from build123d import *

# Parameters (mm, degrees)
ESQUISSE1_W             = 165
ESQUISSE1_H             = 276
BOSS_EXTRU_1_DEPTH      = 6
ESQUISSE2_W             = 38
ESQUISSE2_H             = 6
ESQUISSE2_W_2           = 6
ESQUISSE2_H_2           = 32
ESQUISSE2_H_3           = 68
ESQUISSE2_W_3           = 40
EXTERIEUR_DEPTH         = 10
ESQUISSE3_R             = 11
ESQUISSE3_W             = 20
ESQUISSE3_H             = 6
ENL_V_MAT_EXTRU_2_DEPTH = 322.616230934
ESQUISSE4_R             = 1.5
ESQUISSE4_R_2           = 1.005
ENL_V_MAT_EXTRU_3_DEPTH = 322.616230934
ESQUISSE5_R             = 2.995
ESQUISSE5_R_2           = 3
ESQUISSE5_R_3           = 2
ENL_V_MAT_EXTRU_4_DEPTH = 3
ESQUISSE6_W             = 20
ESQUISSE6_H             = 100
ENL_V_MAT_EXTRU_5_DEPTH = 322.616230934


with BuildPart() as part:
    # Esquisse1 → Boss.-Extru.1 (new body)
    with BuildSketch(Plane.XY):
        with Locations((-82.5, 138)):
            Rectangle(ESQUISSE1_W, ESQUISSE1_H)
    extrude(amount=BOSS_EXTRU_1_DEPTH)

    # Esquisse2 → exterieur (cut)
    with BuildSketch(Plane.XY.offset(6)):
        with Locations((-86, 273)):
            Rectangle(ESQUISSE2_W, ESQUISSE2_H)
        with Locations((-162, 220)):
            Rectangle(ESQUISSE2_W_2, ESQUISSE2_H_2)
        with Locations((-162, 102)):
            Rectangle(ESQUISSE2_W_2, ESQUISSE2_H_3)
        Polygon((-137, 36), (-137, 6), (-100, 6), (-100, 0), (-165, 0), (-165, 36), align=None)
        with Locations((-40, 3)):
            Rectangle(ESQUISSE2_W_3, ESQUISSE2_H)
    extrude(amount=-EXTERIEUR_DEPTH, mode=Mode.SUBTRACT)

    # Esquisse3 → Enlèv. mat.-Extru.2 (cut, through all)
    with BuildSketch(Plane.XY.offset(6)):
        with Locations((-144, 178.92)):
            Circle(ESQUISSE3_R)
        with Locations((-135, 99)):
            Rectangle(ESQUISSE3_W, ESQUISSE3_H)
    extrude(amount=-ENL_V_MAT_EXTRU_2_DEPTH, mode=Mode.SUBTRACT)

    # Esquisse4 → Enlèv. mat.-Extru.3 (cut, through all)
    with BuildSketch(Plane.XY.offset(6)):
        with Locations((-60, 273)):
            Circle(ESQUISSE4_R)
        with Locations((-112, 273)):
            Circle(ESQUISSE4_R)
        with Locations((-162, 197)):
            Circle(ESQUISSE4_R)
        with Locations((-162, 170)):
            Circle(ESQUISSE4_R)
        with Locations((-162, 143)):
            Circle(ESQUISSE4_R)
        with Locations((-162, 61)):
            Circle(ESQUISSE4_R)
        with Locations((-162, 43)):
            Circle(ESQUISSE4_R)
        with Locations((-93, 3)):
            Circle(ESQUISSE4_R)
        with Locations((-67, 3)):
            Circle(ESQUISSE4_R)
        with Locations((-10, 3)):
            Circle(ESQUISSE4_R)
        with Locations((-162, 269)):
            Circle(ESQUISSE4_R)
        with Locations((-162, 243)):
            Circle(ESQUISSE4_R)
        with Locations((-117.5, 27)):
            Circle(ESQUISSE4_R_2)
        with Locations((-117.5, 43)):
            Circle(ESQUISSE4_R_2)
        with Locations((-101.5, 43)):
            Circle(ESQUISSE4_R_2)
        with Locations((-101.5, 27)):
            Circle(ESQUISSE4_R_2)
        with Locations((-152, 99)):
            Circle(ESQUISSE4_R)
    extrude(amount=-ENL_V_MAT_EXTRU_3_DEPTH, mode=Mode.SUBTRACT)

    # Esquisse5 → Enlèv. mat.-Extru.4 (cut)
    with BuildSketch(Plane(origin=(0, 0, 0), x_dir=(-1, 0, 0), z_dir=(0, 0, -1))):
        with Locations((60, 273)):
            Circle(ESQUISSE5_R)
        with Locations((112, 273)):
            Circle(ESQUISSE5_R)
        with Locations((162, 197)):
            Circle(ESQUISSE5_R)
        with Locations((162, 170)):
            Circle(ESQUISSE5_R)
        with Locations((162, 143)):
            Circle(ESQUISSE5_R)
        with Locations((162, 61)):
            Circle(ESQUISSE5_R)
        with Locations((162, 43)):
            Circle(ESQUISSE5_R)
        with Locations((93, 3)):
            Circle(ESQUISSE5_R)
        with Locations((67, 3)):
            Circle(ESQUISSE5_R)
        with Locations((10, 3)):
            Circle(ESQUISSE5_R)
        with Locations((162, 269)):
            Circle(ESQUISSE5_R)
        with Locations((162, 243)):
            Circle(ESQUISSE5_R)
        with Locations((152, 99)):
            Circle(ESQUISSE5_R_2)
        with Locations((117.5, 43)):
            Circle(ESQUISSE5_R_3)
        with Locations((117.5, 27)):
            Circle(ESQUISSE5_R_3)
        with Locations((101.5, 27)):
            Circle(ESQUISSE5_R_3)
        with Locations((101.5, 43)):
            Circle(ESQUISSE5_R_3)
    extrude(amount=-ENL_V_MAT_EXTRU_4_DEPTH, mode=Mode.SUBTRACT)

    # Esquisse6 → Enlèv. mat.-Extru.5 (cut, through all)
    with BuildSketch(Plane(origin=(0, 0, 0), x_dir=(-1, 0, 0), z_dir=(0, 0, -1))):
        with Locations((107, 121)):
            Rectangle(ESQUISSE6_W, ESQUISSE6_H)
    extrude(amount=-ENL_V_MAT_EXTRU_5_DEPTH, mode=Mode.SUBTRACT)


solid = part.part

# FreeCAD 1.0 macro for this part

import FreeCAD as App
import Part
import Sketcher
from FreeCAD import Vector
Q = App.Units.Quantity


def add_polygon(sketch, points):
    """Adds a closed chain of lines whose ends are joined by coincident constraints."""
    first, n = sketch.GeometryCount, len(points)
    for a, b in zip(points, points[1:] + points[:1]):
        sketch.addGeometry(Part.LineSegment(App.Vector(*a, 0), App.Vector(*b, 0)), False)
    for i in range(n):
        sketch.addConstraint(Sketcher.Constraint("Coincident", first + i, 2, first + (i + 1) % n, 1))

doc = App.newDocument("Part")
body = doc.addObject("PartDesign::Body", "Body")

sketch1 = body.newObject("Sketcher::SketchObject", "Sketch")
sketch1.AttachmentSupport = (doc.getObject("XY_Plane"), [""])
sketch1.MapMode = "FlatFace"
add_polygon(sketch1, [(-165, 276), (-165, 0), (0, 0), (0, 276)])
sketch1.addConstraint(Sketcher.Constraint("Vertical", 0))
sketch1.addConstraint(Sketcher.Constraint("Horizontal", 1))
sketch1.addConstraint(Sketcher.Constraint("Vertical", 2))
sketch1.addConstraint(Sketcher.Constraint("Horizontal", 3))
sketch1.addConstraint(Sketcher.Constraint("Coincident", 1, 2, -1, 1))
sketch1.addConstraint(Sketcher.Constraint("DistanceX", 1, 1, 1, 2, Q("165 mm")))
sketch1.addConstraint(Sketcher.Constraint("DistanceY", 0, 2, 0, 1, Q("276 mm")))
pad1 = body.newObject("PartDesign::Pad", "Pad")
pad1.Profile = sketch1
pad1.Length = 6

sketch2 = body.newObject("Sketcher::SketchObject", "Sketch001")
sketch2.AttachmentSupport = (doc.getObject("XY_Plane"), [""])
sketch2.MapMode = "FlatFace"
sketch2.AttachmentOffset = App.Placement(Vector(0, 0, 6), App.Rotation())
add_polygon(sketch2, [(-105, 276), (-105, 270), (-67, 270), (-67, 276)])
add_polygon(sketch2, [(-165, 236), (-165, 204), (-159, 204), (-159, 236)])
add_polygon(sketch2, [(-165, 136), (-165, 68), (-159, 68), (-159, 136)])
add_polygon(sketch2, [(-137, 6), (-137, 36), (-165, 36), (-165, 0), (-100, 0), (-100, 6)])
add_polygon(sketch2, [(-60, 6), (-60, 0), (-20, 0), (-20, 6)])
sketch2.addConstraint(Sketcher.Constraint("Vertical", 0))
sketch2.addConstraint(Sketcher.Constraint("Horizontal", 1))
sketch2.addConstraint(Sketcher.Constraint("Vertical", 2))
sketch2.addConstraint(Sketcher.Constraint("Horizontal", 3))
sketch2.addConstraint(Sketcher.Constraint("Vertical", 4))
sketch2.addConstraint(Sketcher.Constraint("Horizontal", 5))
sketch2.addConstraint(Sketcher.Constraint("Vertical", 6))
sketch2.addConstraint(Sketcher.Constraint("Horizontal", 7))
sketch2.addConstraint(Sketcher.Constraint("Vertical", 8))
sketch2.addConstraint(Sketcher.Constraint("Horizontal", 9))
sketch2.addConstraint(Sketcher.Constraint("Vertical", 10))
sketch2.addConstraint(Sketcher.Constraint("Horizontal", 11))
sketch2.addConstraint(Sketcher.Constraint("Vertical", 12))
sketch2.addConstraint(Sketcher.Constraint("Horizontal", 13))
sketch2.addConstraint(Sketcher.Constraint("Vertical", 14))
sketch2.addConstraint(Sketcher.Constraint("Horizontal", 15))
sketch2.addConstraint(Sketcher.Constraint("Vertical", 16))
sketch2.addConstraint(Sketcher.Constraint("Horizontal", 17))
sketch2.addConstraint(Sketcher.Constraint("Vertical", 18))
sketch2.addConstraint(Sketcher.Constraint("Horizontal", 19))
sketch2.addConstraint(Sketcher.Constraint("Vertical", 20))
sketch2.addConstraint(Sketcher.Constraint("Horizontal", 21))
sketch2.addConstraint(Sketcher.Constraint("PointOnObject", 14, 2, -1))
sketch2.addConstraint(Sketcher.Constraint("PointOnObject", 18, 2, -1))
sketch2.addConstraint(Sketcher.Constraint("Horizontal", 17, 2, 20, 2))
sketch2.addConstraint(Sketcher.Constraint("Vertical", 7, 2, 8, 2))
sketch2.addConstraint(Sketcher.Constraint("Vertical", 6, 2, 9, 2))
sketch2.addConstraint(Sketcher.Constraint("Vertical", 11, 2, 13, 2))
sketch2.addConstraint(Sketcher.Constraint("Equal", 11, 0))
sketch2.addConstraint(Sketcher.Constraint("Equal", 2, 16))
sketch2.addConstraint(Sketcher.Constraint("DistanceX", 1, 1, 1, 2, Q("38 mm")))
sketch2.addConstraint(Sketcher.Constraint("DistanceX", 5, 1, 5, 2, Q("6 mm")))
sketch2.addConstraint(Sketcher.Constraint("DistanceX", 13, 2, 13, 1, Q("28 mm")))
sketch2.addConstraint(Sketcher.Constraint("DistanceX", 15, 1, 15, 2, Q("65 mm")))
sketch2.addConstraint(Sketcher.Constraint("DistanceX", 19, 1, 19, 2, Q("40 mm")))
sketch2.addConstraint(Sketcher.Constraint("DistanceY", 4, 2, 4, 1, Q("32 mm")))
sketch2.addConstraint(Sketcher.Constraint("DistanceY", 8, 2, 8, 1, Q("68 mm")))
sketch2.addConstraint(Sketcher.Constraint("DistanceY", 12, 1, 12, 2, Q("30 mm")))
sketch2.addConstraint(Sketcher.Constraint("DistanceX", 0, 2, -1, 1, Q("105 mm")))
sketch2.addConstraint(Sketcher.Constraint("DistanceY", -1, 1, 0, 2, Q("270 mm")))
sketch2.addConstraint(Sketcher.Constraint("DistanceX", 4, 2, -1, 1, Q("165 mm")))
sketch2.addConstraint(Sketcher.Constraint("DistanceY", -1, 1, 4, 2, Q("204 mm")))
sketch2.addConstraint(Sketcher.Constraint("DistanceY", -1, 1, 8, 2, Q("68 mm")))
sketch2.addConstraint(Sketcher.Constraint("DistanceX", 18, 2, -1, 1, Q("60 mm")))
pocket1 = body.newObject("PartDesign::Pocket", "Pocket")
pocket1.Profile = sketch2
pocket1.Length = 10

sketch3 = body.newObject("Sketcher::SketchObject", "Sketch002")
sketch3.AttachmentSupport = (doc.getObject("XY_Plane"), [""])
sketch3.MapMode = "FlatFace"
sketch3.AttachmentOffset = App.Placement(Vector(0, 0, 6), App.Rotation())
sketch3.addGeometry(Part.Circle(Vector(-144, 178.92, 0), Vector(0, 0, 1), 11), False)
add_polygon(sketch3, [(-145, 102), (-145, 96), (-125, 96), (-125, 102)])
sketch3.addConstraint(Sketcher.Constraint("Vertical", 1))
sketch3.addConstraint(Sketcher.Constraint("Horizontal", 2))
sketch3.addConstraint(Sketcher.Constraint("Vertical", 3))
sketch3.addConstraint(Sketcher.Constraint("Horizontal", 4))
sketch3.addConstraint(Sketcher.Constraint("Diameter", 0, Q("22 mm")))
sketch3.addConstraint(Sketcher.Constraint("DistanceX", 2, 1, 2, 2, Q("20 mm")))
sketch3.addConstraint(Sketcher.Constraint("DistanceY", 1, 2, 1, 1, Q("6 mm")))
sketch3.addConstraint(Sketcher.Constraint("DistanceX", 0, 3, -1, 1, Q("144 mm")))
sketch3.addConstraint(Sketcher.Constraint("DistanceX", 1, 2, -1, 1, Q("145 mm")))
sketch3.addConstraint(Sketcher.Constraint("DistanceY", -1, 1, 1, 2, Q("96 mm")))
sketch3.addConstraint(Sketcher.Constraint("DistanceY", -1, 1, 0, 3, Q("178.92 mm")))
pocket2 = body.newObject("PartDesign::Pocket", "Pocket001")
pocket2.Profile = sketch3
pocket2.Type = "ThroughAll"

sketch4 = body.newObject("Sketcher::SketchObject", "Sketch003")
sketch4.AttachmentSupport = (doc.getObject("XY_Plane"), [""])
sketch4.MapMode = "FlatFace"
sketch4.AttachmentOffset = App.Placement(Vector(0, 0, 6), App.Rotation())
sketch4.addGeometry(Part.Circle(Vector(-60, 273, 0), Vector(0, 0, 1), 1.5), False)
sketch4.addGeometry(Part.Circle(Vector(-112, 273, 0), Vector(0, 0, 1), 1.5), False)
sketch4.addGeometry(Part.Circle(Vector(-162, 197, 0), Vector(0, 0, 1), 1.5), False)
sketch4.addGeometry(Part.Circle(Vector(-162, 170, 0), Vector(0, 0, 1), 1.5), False)
sketch4.addGeometry(Part.Circle(Vector(-162, 143, 0), Vector(0, 0, 1), 1.5), False)
sketch4.addGeometry(Part.Circle(Vector(-162, 61, 0), Vector(0, 0, 1), 1.5), False)
sketch4.addGeometry(Part.Circle(Vector(-162, 43, 0), Vector(0, 0, 1), 1.5), False)
sketch4.addGeometry(Part.Circle(Vector(-93, 3, 0), Vector(0, 0, 1), 1.5), False)
sketch4.addGeometry(Part.Circle(Vector(-67, 3, 0), Vector(0, 0, 1), 1.5), False)
sketch4.addGeometry(Part.Circle(Vector(-10, 3, 0), Vector(0, 0, 1), 1.5), False)
sketch4.addGeometry(Part.Circle(Vector(-162, 269, 0), Vector(0, 0, 1), 1.5), False)
sketch4.addGeometry(Part.Circle(Vector(-162, 243, 0), Vector(0, 0, 1), 1.5), False)
sketch4.addGeometry(Part.Circle(Vector(-117.5, 27, 0), Vector(0, 0, 1), 1.005), False)
sketch4.addGeometry(Part.Circle(Vector(-117.5, 43, 0), Vector(0, 0, 1), 1.005), False)
sketch4.addGeometry(Part.Circle(Vector(-101.5, 43, 0), Vector(0, 0, 1), 1.005), False)
sketch4.addGeometry(Part.Circle(Vector(-101.5, 27, 0), Vector(0, 0, 1), 1.005), False)
sketch4.addGeometry(Part.Circle(Vector(-152, 99, 0), Vector(0, 0, 1), 1.5), False)
sketch4.addConstraint(Sketcher.Constraint("Equal", 0, 1))
sketch4.addConstraint(Sketcher.Constraint("Equal", 1, 2))
sketch4.addConstraint(Sketcher.Constraint("Equal", 2, 3))
sketch4.addConstraint(Sketcher.Constraint("Equal", 3, 4))
sketch4.addConstraint(Sketcher.Constraint("Equal", 4, 5))
sketch4.addConstraint(Sketcher.Constraint("Equal", 5, 6))
sketch4.addConstraint(Sketcher.Constraint("Equal", 6, 7))
sketch4.addConstraint(Sketcher.Constraint("Equal", 7, 8))
sketch4.addConstraint(Sketcher.Constraint("Equal", 8, 9))
sketch4.addConstraint(Sketcher.Constraint("Equal", 9, 10))
sketch4.addConstraint(Sketcher.Constraint("Equal", 10, 11))
sketch4.addConstraint(Sketcher.Constraint("Equal", 12, 13))
sketch4.addConstraint(Sketcher.Constraint("Equal", 13, 14))
sketch4.addConstraint(Sketcher.Constraint("Equal", 14, 15))
sketch4.addConstraint(Sketcher.Constraint("Equal", 11, 16))
sketch4.addConstraint(Sketcher.Constraint("Horizontal", 0, 3, 1, 3))
sketch4.addConstraint(Sketcher.Constraint("Horizontal", 7, 3, 8, 3))
sketch4.addConstraint(Sketcher.Constraint("Horizontal", 8, 3, 9, 3))
sketch4.addConstraint(Sketcher.Constraint("Horizontal", 6, 3, 13, 3))
sketch4.addConstraint(Sketcher.Constraint("Horizontal", 13, 3, 14, 3))
sketch4.addConstraint(Sketcher.Constraint("Horizontal", 12, 3, 15, 3))
sketch4.addConstraint(Sketcher.Constraint("Vertical", 2, 3, 3, 3))
sketch4.addConstraint(Sketcher.Constraint("Vertical", 3, 3, 4, 3))
sketch4.addConstraint(Sketcher.Constraint("Vertical", 4, 3, 5, 3))
sketch4.addConstraint(Sketcher.Constraint("Vertical", 5, 3, 6, 3))
sketch4.addConstraint(Sketcher.Constraint("Vertical", 6, 3, 10, 3))
sketch4.addConstraint(Sketcher.Constraint("Vertical", 10, 3, 11, 3))
sketch4.addConstraint(Sketcher.Constraint("Vertical", 12, 3, 13, 3))
sketch4.addConstraint(Sketcher.Constraint("Vertical", 14, 3, 15, 3))
sketch4.addConstraint(Sketcher.Constraint("Diameter", 0, Q("3 mm")))
sketch4.addConstraint(Sketcher.Constraint("Diameter", 12, Q("2.01 mm")))
sketch4.addConstraint(Sketcher.Constraint("DistanceX", 0, 3, -1, 1, Q("60 mm")))
sketch4.addConstraint(Sketcher.Constraint("DistanceY", -1, 1, 0, 3, Q("273 mm")))
sketch4.addConstraint(Sketcher.Constraint("DistanceX", 1, 3, -1, 1, Q("112 mm")))
sketch4.addConstraint(Sketcher.Constraint("DistanceX", 2, 3, -1, 1, Q("162 mm")))
sketch4.addConstraint(Sketcher.Constraint("DistanceY", -1, 1, 2, 3, Q("197 mm")))
sketch4.addConstraint(Sketcher.Constraint("DistanceY", -1, 1, 3, 3, Q("170 mm")))
sketch4.addConstraint(Sketcher.Constraint("DistanceY", -1, 1, 4, 3, Q("143 mm")))
sketch4.addConstraint(Sketcher.Constraint("DistanceY", -1, 1, 5, 3, Q("61 mm")))
sketch4.addConstraint(Sketcher.Constraint("DistanceY", -1, 1, 6, 3, Q("43 mm")))
sketch4.addConstraint(Sketcher.Constraint("DistanceX", 7, 3, -1, 1, Q("93 mm")))
sketch4.addConstraint(Sketcher.Constraint("DistanceY", -1, 1, 7, 3, Q("3 mm")))
sketch4.addConstraint(Sketcher.Constraint("DistanceX", 8, 3, -1, 1, Q("67 mm")))
sketch4.addConstraint(Sketcher.Constraint("DistanceX", 9, 3, -1, 1, Q("10 mm")))
sketch4.addConstraint(Sketcher.Constraint("DistanceY", -1, 1, 10, 3, Q("269 mm")))
sketch4.addConstraint(Sketcher.Constraint("DistanceY", -1, 1, 11, 3, Q("243 mm")))
sketch4.addConstraint(Sketcher.Constraint("DistanceY", -1, 1, 12, 3, Q("27 mm")))
sketch4.addConstraint(Sketcher.Constraint("DistanceX", 16, 3, -1, 1, Q("152 mm")))
sketch4.addConstraint(Sketcher.Constraint("DistanceY", -1, 1, 16, 3, Q("99 mm")))
sketch4.addConstraint(Sketcher.Constraint("DistanceX", 13, 3, 14, 3, Q("16 mm")))
sketch4.addConstraint(Sketcher.Constraint("DistanceX", 12, 3, -1, 1, Q("117.5 mm")))
pocket3 = body.newObject("PartDesign::Pocket", "Pocket002")
pocket3.Profile = sketch4
pocket3.Type = "ThroughAll"

sketch5 = body.newObject("Sketcher::SketchObject", "Sketch004")
sketch5.AttachmentSupport = (doc.getObject("XY_Plane"), [""])
sketch5.MapMode = "FlatFace"
sketch5.addGeometry(Part.Circle(Vector(-60, 273, 0), Vector(0, 0, 1), 2.995), False)
sketch5.addGeometry(Part.Circle(Vector(-112, 273, 0), Vector(0, 0, 1), 2.995), False)
sketch5.addGeometry(Part.Circle(Vector(-162, 197, 0), Vector(0, 0, 1), 2.995), False)
sketch5.addGeometry(Part.Circle(Vector(-162, 170, 0), Vector(0, 0, 1), 2.995), False)
sketch5.addGeometry(Part.Circle(Vector(-162, 143, 0), Vector(0, 0, 1), 2.995), False)
sketch5.addGeometry(Part.Circle(Vector(-162, 61, 0), Vector(0, 0, 1), 2.995), False)
sketch5.addGeometry(Part.Circle(Vector(-162, 43, 0), Vector(0, 0, 1), 2.995), False)
sketch5.addGeometry(Part.Circle(Vector(-93, 3, 0), Vector(0, 0, 1), 2.995), False)
sketch5.addGeometry(Part.Circle(Vector(-67, 3, 0), Vector(0, 0, 1), 2.995), False)
sketch5.addGeometry(Part.Circle(Vector(-10, 3, 0), Vector(0, 0, 1), 2.995), False)
sketch5.addGeometry(Part.Circle(Vector(-162, 269, 0), Vector(0, 0, 1), 2.995), False)
sketch5.addGeometry(Part.Circle(Vector(-162, 243, 0), Vector(0, 0, 1), 2.995), False)
sketch5.addGeometry(Part.Circle(Vector(-152, 99, 0), Vector(0, 0, 1), 3), False)
sketch5.addGeometry(Part.Circle(Vector(-117.5, 43, 0), Vector(0, 0, 1), 2), False)
sketch5.addGeometry(Part.Circle(Vector(-117.5, 27, 0), Vector(0, 0, 1), 2), False)
sketch5.addGeometry(Part.Circle(Vector(-101.5, 27, 0), Vector(0, 0, 1), 2), False)
sketch5.addGeometry(Part.Circle(Vector(-101.5, 43, 0), Vector(0, 0, 1), 2), False)
sketch5.addConstraint(Sketcher.Constraint("Equal", 0, 1))
sketch5.addConstraint(Sketcher.Constraint("Equal", 1, 2))
sketch5.addConstraint(Sketcher.Constraint("Equal", 2, 3))
sketch5.addConstraint(Sketcher.Constraint("Equal", 3, 4))
sketch5.addConstraint(Sketcher.Constraint("Equal", 4, 5))
sketch5.addConstraint(Sketcher.Constraint("Equal", 5, 6))
sketch5.addConstraint(Sketcher.Constraint("Equal", 6, 7))
sketch5.addConstraint(Sketcher.Constraint("Equal", 7, 8))
sketch5.addConstraint(Sketcher.Constraint("Equal", 8, 9))
sketch5.addConstraint(Sketcher.Constraint("Equal", 9, 10))
sketch5.addConstraint(Sketcher.Constraint("Equal", 10, 11))
sketch5.addConstraint(Sketcher.Constraint("Equal", 13, 14))
sketch5.addConstraint(Sketcher.Constraint("Equal", 14, 15))
sketch5.addConstraint(Sketcher.Constraint("Equal", 15, 16))
sketch5.addConstraint(Sketcher.Constraint("Horizontal", 0, 3, 1, 3))
sketch5.addConstraint(Sketcher.Constraint("Horizontal", 7, 3, 8, 3))
sketch5.addConstraint(Sketcher.Constraint("Horizontal", 8, 3, 9, 3))
sketch5.addConstraint(Sketcher.Constraint("Horizontal", 6, 3, 13, 3))
sketch5.addConstraint(Sketcher.Constraint("Horizontal", 14, 3, 15, 3))
sketch5.addConstraint(Sketcher.Constraint("Horizontal", 13, 3, 16, 3))
sketch5.addConstraint(Sketcher.Constraint("Vertical", 2, 3, 3, 3))
sketch5.addConstraint(Sketcher.Constraint("Vertical", 3, 3, 4, 3))
sketch5.addConstraint(Sketcher.Constraint("Vertical", 4, 3, 5, 3))
sketch5.addConstraint(Sketcher.Constraint("Vertical", 5, 3, 6, 3))
sketch5.addConstraint(Sketcher.Constraint("Vertical", 6, 3, 10, 3))
sketch5.addConstraint(Sketcher.Constraint("Vertical", 10, 3, 11, 3))
sketch5.addConstraint(Sketcher.Constraint("Vertical", 13, 3, 14, 3))
sketch5.addConstraint(Sketcher.Constraint("Vertical", 15, 3, 16, 3))
sketch5.addConstraint(Sketcher.Constraint("Diameter", 12, Q("6 mm")))
sketch5.addConstraint(Sketcher.Constraint("Diameter", 13, Q("4 mm")))
sketch5.addConstraint(Sketcher.Constraint("Diameter", 0, Q("5.99 mm")))
sketch5.addConstraint(Sketcher.Constraint("DistanceX", 0, 3, -1, 1, Q("60 mm")))
sketch5.addConstraint(Sketcher.Constraint("DistanceY", -1, 1, 0, 3, Q("273 mm")))
sketch5.addConstraint(Sketcher.Constraint("DistanceX", 1, 3, -1, 1, Q("112 mm")))
sketch5.addConstraint(Sketcher.Constraint("DistanceX", 2, 3, -1, 1, Q("162 mm")))
sketch5.addConstraint(Sketcher.Constraint("DistanceY", -1, 1, 2, 3, Q("197 mm")))
sketch5.addConstraint(Sketcher.Constraint("DistanceY", -1, 1, 3, 3, Q("170 mm")))
sketch5.addConstraint(Sketcher.Constraint("DistanceY", -1, 1, 4, 3, Q("143 mm")))
sketch5.addConstraint(Sketcher.Constraint("DistanceY", -1, 1, 5, 3, Q("61 mm")))
sketch5.addConstraint(Sketcher.Constraint("DistanceY", -1, 1, 6, 3, Q("43 mm")))
sketch5.addConstraint(Sketcher.Constraint("DistanceX", 7, 3, -1, 1, Q("93 mm")))
sketch5.addConstraint(Sketcher.Constraint("DistanceY", -1, 1, 7, 3, Q("3 mm")))
sketch5.addConstraint(Sketcher.Constraint("DistanceX", 8, 3, -1, 1, Q("67 mm")))
sketch5.addConstraint(Sketcher.Constraint("DistanceX", 9, 3, -1, 1, Q("10 mm")))
sketch5.addConstraint(Sketcher.Constraint("DistanceY", -1, 1, 10, 3, Q("269 mm")))
sketch5.addConstraint(Sketcher.Constraint("DistanceY", -1, 1, 11, 3, Q("243 mm")))
sketch5.addConstraint(Sketcher.Constraint("DistanceX", 12, 3, -1, 1, Q("152 mm")))
sketch5.addConstraint(Sketcher.Constraint("DistanceY", -1, 1, 12, 3, Q("99 mm")))
sketch5.addConstraint(Sketcher.Constraint("DistanceY", -1, 1, 14, 3, Q("27 mm")))
sketch5.addConstraint(Sketcher.Constraint("DistanceX", 14, 3, 15, 3, Q("16 mm")))
sketch5.addConstraint(Sketcher.Constraint("DistanceX", 13, 3, -1, 1, Q("117.5 mm")))
pocket4 = body.newObject("PartDesign::Pocket", "Pocket003")
pocket4.Profile = sketch5
pocket4.Length = 3
pocket4.Reversed = True

sketch6 = body.newObject("Sketcher::SketchObject", "Sketch005")
sketch6.AttachmentSupport = (doc.getObject("XY_Plane"), [""])
sketch6.MapMode = "FlatFace"
add_polygon(sketch6, [(-97, 171), (-97, 71), (-117, 71), (-117, 171)])
sketch6.addConstraint(Sketcher.Constraint("Vertical", 0))
sketch6.addConstraint(Sketcher.Constraint("Horizontal", 1))
sketch6.addConstraint(Sketcher.Constraint("Vertical", 2))
sketch6.addConstraint(Sketcher.Constraint("Horizontal", 3))
sketch6.addConstraint(Sketcher.Constraint("DistanceX", 1, 2, 1, 1, Q("20 mm")))
sketch6.addConstraint(Sketcher.Constraint("DistanceY", 0, 2, 0, 1, Q("100 mm")))
sketch6.addConstraint(Sketcher.Constraint("DistanceX", 0, 2, -1, 1, Q("97 mm")))
sketch6.addConstraint(Sketcher.Constraint("DistanceY", -1, 1, 0, 2, Q("71 mm")))
pocket5 = body.newObject("PartDesign::Pocket", "Pocket004")
pocket5.Profile = sketch6
pocket5.Type = "ThroughAll"
pocket5.Reversed = True

doc.recompute()
